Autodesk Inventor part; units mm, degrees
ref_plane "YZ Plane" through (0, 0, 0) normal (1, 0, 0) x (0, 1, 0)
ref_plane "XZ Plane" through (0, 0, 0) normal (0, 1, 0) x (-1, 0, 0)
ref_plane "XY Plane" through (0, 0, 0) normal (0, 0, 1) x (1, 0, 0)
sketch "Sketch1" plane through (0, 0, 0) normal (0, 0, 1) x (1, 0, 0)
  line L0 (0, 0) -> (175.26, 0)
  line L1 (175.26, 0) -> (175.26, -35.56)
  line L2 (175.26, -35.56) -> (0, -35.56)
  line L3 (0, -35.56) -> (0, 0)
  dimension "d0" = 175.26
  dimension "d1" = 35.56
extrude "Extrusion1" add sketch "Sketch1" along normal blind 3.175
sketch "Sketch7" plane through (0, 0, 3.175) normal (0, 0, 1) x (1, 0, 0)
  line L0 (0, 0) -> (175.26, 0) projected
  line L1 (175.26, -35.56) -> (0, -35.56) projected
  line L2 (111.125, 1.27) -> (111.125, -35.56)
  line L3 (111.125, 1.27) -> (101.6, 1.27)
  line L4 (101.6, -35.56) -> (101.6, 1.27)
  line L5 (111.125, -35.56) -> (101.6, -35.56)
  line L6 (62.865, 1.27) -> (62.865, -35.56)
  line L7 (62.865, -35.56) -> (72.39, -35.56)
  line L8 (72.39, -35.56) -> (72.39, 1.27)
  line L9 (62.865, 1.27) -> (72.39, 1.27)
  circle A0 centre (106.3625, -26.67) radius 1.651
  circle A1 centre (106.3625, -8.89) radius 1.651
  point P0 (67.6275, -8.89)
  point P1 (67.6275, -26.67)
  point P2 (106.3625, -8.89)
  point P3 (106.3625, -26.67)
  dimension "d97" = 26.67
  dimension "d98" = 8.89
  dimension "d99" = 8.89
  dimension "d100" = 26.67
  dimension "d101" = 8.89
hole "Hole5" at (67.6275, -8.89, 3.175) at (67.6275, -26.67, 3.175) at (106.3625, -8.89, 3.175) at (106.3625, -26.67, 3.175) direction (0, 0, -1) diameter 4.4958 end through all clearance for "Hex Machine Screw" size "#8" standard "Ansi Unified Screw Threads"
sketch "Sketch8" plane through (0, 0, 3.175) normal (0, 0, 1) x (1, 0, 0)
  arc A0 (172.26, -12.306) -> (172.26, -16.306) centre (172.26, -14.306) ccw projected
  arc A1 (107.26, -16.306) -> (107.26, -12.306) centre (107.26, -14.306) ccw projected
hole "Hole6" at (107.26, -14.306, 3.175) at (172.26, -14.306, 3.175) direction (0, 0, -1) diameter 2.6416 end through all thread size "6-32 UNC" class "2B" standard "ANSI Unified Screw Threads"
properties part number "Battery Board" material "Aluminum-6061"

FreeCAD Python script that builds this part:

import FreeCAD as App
import Part
import Sketcher
Q = App.Units.Quantity

doc = App.newDocument("Part")
body = doc.addObject("PartDesign::Body", "Body")

# Sketch on XY plane
sketch1 = body.newObject("Sketcher::SketchObject", "Sketch")
sketch1.AttachmentSupport = (doc.getObject("XY_Plane"), [""])
sketch1.MapMode = "FlatFace"
sketch1.addGeometry(Part.LineSegment(App.Vector(175.26, 0, 0), App.Vector(0, 0, 0)), False)
sketch1.addGeometry(Part.LineSegment(App.Vector(0, 0, 0), App.Vector(0, -35.56, 0)), False)
sketch1.addGeometry(Part.LineSegment(App.Vector(0, -35.56, 0), App.Vector(175.26, -35.56, 0)), False)
sketch1.addGeometry(Part.LineSegment(App.Vector(175.26, -35.56, 0), App.Vector(175.26, 0, 0)), False)
sketch1.addConstraint(Sketcher.Constraint("Coincident", 0, 2, 1, 1))
sketch1.addConstraint(Sketcher.Constraint("Coincident", 1, 2, 2, 1))
sketch1.addConstraint(Sketcher.Constraint("Coincident", 2, 2, 3, 1))
sketch1.addConstraint(Sketcher.Constraint("Coincident", 3, 2, 0, 1))
sketch1.addConstraint(Sketcher.Constraint("Horizontal", 0))
sketch1.addConstraint(Sketcher.Constraint("Vertical", 1))
sketch1.addConstraint(Sketcher.Constraint("Horizontal", 2))
sketch1.addConstraint(Sketcher.Constraint("Vertical", 3))
sketch1.addConstraint(Sketcher.Constraint("Coincident", 0, 2, -1, 1))
sketch1.addConstraint(Sketcher.Constraint("DistanceX", 0, 2, 0, 1, Q("6.9 in")))
sketch1.addConstraint(Sketcher.Constraint("DistanceY", 1, 2, 1, 1, Q("1.4 in")))
pad1 = body.newObject("PartDesign::Pad", "Pad")
pad1.Profile = sketch1
pad1.Length = Q("0.125 in")

# Sketch on XY plane
sketch2 = body.newObject("Sketcher::SketchObject", "Sketch001")
sketch2.AttachmentSupport = (doc.getObject("XY_Plane"), [""])
sketch2.MapMode = "FlatFace"
sketch2.AttachmentOffset = App.Placement(App.Vector(0, 0, 0.125 * 25.4), App.Rotation())
sketch2.addGeometry(Part.Circle(App.Vector(67.6275, -8.89, 0), App.Vector(0, 0, 1), 2.2479), False)
sketch2.addGeometry(Part.Circle(App.Vector(67.6275, -26.67, 0), App.Vector(0, 0, 1), 2.2479), False)
sketch2.addGeometry(Part.Circle(App.Vector(106.3625, -8.89, 0), App.Vector(0, 0, 1), 2.2479), False)
sketch2.addGeometry(Part.Circle(App.Vector(106.3625, -26.67, 0), App.Vector(0, 0, 1), 2.2479), False)
sketch2.addConstraint(Sketcher.Constraint("Equal", 0, 1))
sketch2.addConstraint(Sketcher.Constraint("Equal", 1, 2))
sketch2.addConstraint(Sketcher.Constraint("Equal", 2, 3))
sketch2.addConstraint(Sketcher.Constraint("Horizontal", 0, 3, 2, 3))
sketch2.addConstraint(Sketcher.Constraint("Horizontal", 1, 3, 3, 3))
sketch2.addConstraint(Sketcher.Constraint("Vertical", 0, 3, 1, 3))
sketch2.addConstraint(Sketcher.Constraint("Vertical", 2, 3, 3, 3))
sketch2.addConstraint(Sketcher.Constraint("Diameter", 0, Q("0.177 in")))
sketch2.addConstraint(Sketcher.Constraint("DistanceY", 1, 3, 0, 3, Q("0.7 in")))
sketch2.addConstraint(Sketcher.Constraint("DistanceY", 0, 3, -1, 1, Q("0.35 in")))
sketch2.addConstraint(Sketcher.Constraint("DistanceX", -1, 1, 2, 3, Q("4.1875 in")))
sketch2.addConstraint(Sketcher.Constraint("DistanceX", 0, 3, 2, 3, Q("1.525 in")))
doc.recompute()
hole = body.newObject("PartDesign::Hole", "Hole")
hole.Profile = sketch2
hole.ThreadType = "None"
hole.Diameter = Q("0.177 in")
hole.DepthType = "ThroughAll"

# Sketch on XY plane
sketch3 = body.newObject("Sketcher::SketchObject", "Sketch002")
sketch3.AttachmentSupport = (doc.getObject("XY_Plane"), [""])
sketch3.MapMode = "FlatFace"
sketch3.AttachmentOffset = App.Placement(App.Vector(0, 0, 0.125 * 25.4), App.Rotation())
sketch3.addGeometry(Part.Circle(App.Vector(107.26, -14.306, 0), App.Vector(0, 0, 1), 1.3208), False)
sketch3.addGeometry(Part.Circle(App.Vector(172.26, -14.306, 0), App.Vector(0, 0, 1), 1.3208), False)
sketch3.addConstraint(Sketcher.Constraint("Equal", 0, 1))
sketch3.addConstraint(Sketcher.Constraint("Horizontal", 0, 3, 1, 3))
sketch3.addConstraint(Sketcher.Constraint("Diameter", 0, Q("0.104 in")))
sketch3.addConstraint(Sketcher.Constraint("DistanceX", -1, 1, 1, 3, Q("6.7819 in")))
sketch3.addConstraint(Sketcher.Constraint("DistanceX", -1, 1, 0, 3, 107.26))
sketch3.addConstraint(Sketcher.Constraint("DistanceY", 0, 3, -1, 1, 14.306))
doc.recompute()
hole2 = body.newObject("PartDesign::Hole", "Hole001")
hole2.Profile = sketch3
hole2.ThreadType = "None"
hole2.Diameter = Q("0.104 in")
hole2.DepthType = "ThroughAll"

doc.recompute()
